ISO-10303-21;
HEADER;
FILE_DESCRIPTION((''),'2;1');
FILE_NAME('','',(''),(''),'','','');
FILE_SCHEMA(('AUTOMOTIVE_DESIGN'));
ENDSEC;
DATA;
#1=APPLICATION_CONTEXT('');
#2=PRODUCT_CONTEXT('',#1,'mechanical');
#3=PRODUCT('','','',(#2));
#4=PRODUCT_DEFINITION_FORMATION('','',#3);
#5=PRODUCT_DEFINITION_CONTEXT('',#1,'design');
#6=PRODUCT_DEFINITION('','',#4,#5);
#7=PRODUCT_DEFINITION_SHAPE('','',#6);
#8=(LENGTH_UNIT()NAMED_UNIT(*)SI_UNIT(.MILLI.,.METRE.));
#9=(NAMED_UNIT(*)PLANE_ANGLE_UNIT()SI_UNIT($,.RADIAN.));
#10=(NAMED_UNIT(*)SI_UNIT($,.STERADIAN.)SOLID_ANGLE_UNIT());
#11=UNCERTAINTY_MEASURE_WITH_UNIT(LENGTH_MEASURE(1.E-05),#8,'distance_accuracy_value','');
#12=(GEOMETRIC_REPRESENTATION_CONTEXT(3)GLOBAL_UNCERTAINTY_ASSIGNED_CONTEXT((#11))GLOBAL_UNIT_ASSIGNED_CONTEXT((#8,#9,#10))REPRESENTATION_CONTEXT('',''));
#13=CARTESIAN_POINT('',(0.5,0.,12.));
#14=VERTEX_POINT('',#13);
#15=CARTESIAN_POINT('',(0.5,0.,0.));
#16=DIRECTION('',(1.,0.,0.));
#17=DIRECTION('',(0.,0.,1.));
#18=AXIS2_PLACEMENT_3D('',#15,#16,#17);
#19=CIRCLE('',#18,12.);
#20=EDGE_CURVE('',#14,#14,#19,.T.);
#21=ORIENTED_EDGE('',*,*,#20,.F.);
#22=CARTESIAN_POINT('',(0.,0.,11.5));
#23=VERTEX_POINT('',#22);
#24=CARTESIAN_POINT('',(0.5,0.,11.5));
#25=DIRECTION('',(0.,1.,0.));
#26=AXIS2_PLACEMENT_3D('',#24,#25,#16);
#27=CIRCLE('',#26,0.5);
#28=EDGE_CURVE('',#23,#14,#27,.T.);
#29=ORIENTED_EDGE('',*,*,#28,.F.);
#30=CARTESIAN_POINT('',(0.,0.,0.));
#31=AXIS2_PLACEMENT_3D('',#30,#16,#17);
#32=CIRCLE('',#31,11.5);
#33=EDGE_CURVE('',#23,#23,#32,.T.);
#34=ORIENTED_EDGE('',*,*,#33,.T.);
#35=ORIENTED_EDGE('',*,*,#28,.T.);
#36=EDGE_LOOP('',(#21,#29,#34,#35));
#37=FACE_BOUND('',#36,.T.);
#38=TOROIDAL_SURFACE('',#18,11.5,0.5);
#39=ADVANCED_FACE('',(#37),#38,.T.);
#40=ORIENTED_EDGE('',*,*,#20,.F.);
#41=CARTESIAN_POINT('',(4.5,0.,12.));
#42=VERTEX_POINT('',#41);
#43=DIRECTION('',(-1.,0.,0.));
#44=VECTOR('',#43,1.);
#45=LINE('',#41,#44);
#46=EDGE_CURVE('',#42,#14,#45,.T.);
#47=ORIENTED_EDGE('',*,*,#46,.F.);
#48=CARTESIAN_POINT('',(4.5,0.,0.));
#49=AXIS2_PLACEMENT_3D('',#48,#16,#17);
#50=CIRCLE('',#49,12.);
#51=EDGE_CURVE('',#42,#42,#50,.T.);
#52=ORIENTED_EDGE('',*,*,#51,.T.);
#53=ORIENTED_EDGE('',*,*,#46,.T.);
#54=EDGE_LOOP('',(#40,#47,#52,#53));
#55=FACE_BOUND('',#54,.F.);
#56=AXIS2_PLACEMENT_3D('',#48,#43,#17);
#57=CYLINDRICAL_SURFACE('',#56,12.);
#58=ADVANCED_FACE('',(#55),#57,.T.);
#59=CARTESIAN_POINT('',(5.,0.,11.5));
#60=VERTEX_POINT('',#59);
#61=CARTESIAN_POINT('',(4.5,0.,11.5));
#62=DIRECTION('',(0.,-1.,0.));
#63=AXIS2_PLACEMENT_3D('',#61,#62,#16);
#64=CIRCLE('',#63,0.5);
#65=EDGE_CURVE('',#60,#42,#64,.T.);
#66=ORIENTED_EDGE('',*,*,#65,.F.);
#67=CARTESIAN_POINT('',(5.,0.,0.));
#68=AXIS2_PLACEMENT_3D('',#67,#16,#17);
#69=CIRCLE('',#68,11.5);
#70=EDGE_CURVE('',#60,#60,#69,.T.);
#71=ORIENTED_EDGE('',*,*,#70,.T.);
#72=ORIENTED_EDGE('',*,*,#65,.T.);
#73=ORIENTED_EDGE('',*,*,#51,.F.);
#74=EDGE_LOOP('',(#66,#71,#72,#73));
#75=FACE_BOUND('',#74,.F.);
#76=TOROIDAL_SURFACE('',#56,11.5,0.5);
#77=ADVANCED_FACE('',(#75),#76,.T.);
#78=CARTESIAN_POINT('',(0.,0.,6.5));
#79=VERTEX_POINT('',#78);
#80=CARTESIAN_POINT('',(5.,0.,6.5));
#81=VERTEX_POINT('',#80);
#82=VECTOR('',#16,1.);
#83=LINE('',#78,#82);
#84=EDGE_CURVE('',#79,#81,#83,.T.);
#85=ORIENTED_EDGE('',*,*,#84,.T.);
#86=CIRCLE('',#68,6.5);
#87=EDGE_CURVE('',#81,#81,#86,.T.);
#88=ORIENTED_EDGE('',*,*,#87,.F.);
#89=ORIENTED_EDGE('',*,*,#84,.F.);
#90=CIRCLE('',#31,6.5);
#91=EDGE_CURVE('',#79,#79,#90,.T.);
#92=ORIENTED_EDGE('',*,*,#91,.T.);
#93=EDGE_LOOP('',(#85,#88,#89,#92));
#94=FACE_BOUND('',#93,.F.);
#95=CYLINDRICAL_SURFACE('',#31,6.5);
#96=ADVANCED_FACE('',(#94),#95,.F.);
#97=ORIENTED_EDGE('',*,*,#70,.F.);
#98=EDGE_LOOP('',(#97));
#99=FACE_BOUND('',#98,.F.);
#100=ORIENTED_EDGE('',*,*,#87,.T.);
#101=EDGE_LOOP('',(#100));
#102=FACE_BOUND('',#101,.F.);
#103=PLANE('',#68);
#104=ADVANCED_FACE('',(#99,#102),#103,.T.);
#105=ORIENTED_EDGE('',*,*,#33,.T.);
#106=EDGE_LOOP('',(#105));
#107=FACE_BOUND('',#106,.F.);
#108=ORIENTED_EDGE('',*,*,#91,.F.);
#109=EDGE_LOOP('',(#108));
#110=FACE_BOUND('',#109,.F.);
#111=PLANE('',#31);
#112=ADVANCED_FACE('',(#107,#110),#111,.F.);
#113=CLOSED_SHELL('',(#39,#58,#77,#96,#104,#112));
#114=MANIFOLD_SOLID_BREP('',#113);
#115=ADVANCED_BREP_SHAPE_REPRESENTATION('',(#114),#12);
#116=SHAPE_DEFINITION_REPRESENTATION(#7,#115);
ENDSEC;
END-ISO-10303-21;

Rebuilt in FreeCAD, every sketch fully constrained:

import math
import FreeCAD as App
import Part
import Sketcher

V = App.Vector
Q = App.Units.Quantity

doc = App.newDocument("Part")
body = doc.addObject("PartDesign::Body", "Body")

# Sketch on XZ plane
sketch1 = body.newObject("Sketcher::SketchObject", "Sketch")
sketch1.AttachmentSupport = (doc.getObject("XZ_Plane"), [""])
sketch1.MapMode = "FlatFace"
sketch1.addGeometry(Part.LineSegment(V(0, 6.5, 0), V(5, 6.5, 0)), False)
sketch1.addGeometry(Part.LineSegment(V(5, 6.5, 0), V(5, 11.5, 0)), False)
sketch1.addGeometry(Part.ArcOfCircle(Part.Circle(V(4.5, 11.5, 0), V(0, 0, 1), 0.5), math.radians(0), math.radians(90)), False)
sketch1.addGeometry(Part.LineSegment(V(4.5, 12, 0), V(0.5, 12, 0)), False)
sketch1.addGeometry(Part.ArcOfCircle(Part.Circle(V(0.5, 11.5, 0), V(0, 0, 1), 0.5), math.radians(90), math.radians(180)), False)
sketch1.addGeometry(Part.LineSegment(V(0, 11.5, 0), V(0, 6.5, 0)), False)
sketch1.addConstraint(Sketcher.Constraint("Coincident", 0, 2, 1, 1))
sketch1.addConstraint(Sketcher.Constraint("Tangent", 1, 2, 2, 1))
sketch1.addConstraint(Sketcher.Constraint("Tangent", 2, 2, 3, 1))
sketch1.addConstraint(Sketcher.Constraint("Tangent", 3, 2, 4, 1))
sketch1.addConstraint(Sketcher.Constraint("Tangent", 4, 2, 5, 1))
sketch1.addConstraint(Sketcher.Constraint("Coincident", 5, 2, 0, 1))
sketch1.addConstraint(Sketcher.Constraint("Horizontal", 0))
sketch1.addConstraint(Sketcher.Constraint("Vertical", 1))
sketch1.addConstraint(Sketcher.Constraint("Horizontal", 3))
sketch1.addConstraint(Sketcher.Constraint("Vertical", 5))
sketch1.addConstraint(Sketcher.Constraint("Equal", 2, 4))
sketch1.addConstraint(Sketcher.Constraint("PointOnObject", 4, 2, -2))
sketch1.addConstraint(Sketcher.Constraint("Equal", 0, 1))
sketch1.addConstraint(Sketcher.Constraint("Radius", 2, Q("0.5 mm")))
sketch1.addConstraint(Sketcher.Constraint("DistanceX", 0, 1, 0, 2, Q("5 mm")))
sketch1.addConstraint(Sketcher.Constraint("DistanceY", -1, 1, 2, 2, Q("12 mm")))
revolution = body.newObject("PartDesign::Revolution", "Revolution")
revolution.Profile = sketch1
revolution.ReferenceAxis = (sketch1, ["H_Axis"])
revolution.Angle = 360

doc.recompute()
